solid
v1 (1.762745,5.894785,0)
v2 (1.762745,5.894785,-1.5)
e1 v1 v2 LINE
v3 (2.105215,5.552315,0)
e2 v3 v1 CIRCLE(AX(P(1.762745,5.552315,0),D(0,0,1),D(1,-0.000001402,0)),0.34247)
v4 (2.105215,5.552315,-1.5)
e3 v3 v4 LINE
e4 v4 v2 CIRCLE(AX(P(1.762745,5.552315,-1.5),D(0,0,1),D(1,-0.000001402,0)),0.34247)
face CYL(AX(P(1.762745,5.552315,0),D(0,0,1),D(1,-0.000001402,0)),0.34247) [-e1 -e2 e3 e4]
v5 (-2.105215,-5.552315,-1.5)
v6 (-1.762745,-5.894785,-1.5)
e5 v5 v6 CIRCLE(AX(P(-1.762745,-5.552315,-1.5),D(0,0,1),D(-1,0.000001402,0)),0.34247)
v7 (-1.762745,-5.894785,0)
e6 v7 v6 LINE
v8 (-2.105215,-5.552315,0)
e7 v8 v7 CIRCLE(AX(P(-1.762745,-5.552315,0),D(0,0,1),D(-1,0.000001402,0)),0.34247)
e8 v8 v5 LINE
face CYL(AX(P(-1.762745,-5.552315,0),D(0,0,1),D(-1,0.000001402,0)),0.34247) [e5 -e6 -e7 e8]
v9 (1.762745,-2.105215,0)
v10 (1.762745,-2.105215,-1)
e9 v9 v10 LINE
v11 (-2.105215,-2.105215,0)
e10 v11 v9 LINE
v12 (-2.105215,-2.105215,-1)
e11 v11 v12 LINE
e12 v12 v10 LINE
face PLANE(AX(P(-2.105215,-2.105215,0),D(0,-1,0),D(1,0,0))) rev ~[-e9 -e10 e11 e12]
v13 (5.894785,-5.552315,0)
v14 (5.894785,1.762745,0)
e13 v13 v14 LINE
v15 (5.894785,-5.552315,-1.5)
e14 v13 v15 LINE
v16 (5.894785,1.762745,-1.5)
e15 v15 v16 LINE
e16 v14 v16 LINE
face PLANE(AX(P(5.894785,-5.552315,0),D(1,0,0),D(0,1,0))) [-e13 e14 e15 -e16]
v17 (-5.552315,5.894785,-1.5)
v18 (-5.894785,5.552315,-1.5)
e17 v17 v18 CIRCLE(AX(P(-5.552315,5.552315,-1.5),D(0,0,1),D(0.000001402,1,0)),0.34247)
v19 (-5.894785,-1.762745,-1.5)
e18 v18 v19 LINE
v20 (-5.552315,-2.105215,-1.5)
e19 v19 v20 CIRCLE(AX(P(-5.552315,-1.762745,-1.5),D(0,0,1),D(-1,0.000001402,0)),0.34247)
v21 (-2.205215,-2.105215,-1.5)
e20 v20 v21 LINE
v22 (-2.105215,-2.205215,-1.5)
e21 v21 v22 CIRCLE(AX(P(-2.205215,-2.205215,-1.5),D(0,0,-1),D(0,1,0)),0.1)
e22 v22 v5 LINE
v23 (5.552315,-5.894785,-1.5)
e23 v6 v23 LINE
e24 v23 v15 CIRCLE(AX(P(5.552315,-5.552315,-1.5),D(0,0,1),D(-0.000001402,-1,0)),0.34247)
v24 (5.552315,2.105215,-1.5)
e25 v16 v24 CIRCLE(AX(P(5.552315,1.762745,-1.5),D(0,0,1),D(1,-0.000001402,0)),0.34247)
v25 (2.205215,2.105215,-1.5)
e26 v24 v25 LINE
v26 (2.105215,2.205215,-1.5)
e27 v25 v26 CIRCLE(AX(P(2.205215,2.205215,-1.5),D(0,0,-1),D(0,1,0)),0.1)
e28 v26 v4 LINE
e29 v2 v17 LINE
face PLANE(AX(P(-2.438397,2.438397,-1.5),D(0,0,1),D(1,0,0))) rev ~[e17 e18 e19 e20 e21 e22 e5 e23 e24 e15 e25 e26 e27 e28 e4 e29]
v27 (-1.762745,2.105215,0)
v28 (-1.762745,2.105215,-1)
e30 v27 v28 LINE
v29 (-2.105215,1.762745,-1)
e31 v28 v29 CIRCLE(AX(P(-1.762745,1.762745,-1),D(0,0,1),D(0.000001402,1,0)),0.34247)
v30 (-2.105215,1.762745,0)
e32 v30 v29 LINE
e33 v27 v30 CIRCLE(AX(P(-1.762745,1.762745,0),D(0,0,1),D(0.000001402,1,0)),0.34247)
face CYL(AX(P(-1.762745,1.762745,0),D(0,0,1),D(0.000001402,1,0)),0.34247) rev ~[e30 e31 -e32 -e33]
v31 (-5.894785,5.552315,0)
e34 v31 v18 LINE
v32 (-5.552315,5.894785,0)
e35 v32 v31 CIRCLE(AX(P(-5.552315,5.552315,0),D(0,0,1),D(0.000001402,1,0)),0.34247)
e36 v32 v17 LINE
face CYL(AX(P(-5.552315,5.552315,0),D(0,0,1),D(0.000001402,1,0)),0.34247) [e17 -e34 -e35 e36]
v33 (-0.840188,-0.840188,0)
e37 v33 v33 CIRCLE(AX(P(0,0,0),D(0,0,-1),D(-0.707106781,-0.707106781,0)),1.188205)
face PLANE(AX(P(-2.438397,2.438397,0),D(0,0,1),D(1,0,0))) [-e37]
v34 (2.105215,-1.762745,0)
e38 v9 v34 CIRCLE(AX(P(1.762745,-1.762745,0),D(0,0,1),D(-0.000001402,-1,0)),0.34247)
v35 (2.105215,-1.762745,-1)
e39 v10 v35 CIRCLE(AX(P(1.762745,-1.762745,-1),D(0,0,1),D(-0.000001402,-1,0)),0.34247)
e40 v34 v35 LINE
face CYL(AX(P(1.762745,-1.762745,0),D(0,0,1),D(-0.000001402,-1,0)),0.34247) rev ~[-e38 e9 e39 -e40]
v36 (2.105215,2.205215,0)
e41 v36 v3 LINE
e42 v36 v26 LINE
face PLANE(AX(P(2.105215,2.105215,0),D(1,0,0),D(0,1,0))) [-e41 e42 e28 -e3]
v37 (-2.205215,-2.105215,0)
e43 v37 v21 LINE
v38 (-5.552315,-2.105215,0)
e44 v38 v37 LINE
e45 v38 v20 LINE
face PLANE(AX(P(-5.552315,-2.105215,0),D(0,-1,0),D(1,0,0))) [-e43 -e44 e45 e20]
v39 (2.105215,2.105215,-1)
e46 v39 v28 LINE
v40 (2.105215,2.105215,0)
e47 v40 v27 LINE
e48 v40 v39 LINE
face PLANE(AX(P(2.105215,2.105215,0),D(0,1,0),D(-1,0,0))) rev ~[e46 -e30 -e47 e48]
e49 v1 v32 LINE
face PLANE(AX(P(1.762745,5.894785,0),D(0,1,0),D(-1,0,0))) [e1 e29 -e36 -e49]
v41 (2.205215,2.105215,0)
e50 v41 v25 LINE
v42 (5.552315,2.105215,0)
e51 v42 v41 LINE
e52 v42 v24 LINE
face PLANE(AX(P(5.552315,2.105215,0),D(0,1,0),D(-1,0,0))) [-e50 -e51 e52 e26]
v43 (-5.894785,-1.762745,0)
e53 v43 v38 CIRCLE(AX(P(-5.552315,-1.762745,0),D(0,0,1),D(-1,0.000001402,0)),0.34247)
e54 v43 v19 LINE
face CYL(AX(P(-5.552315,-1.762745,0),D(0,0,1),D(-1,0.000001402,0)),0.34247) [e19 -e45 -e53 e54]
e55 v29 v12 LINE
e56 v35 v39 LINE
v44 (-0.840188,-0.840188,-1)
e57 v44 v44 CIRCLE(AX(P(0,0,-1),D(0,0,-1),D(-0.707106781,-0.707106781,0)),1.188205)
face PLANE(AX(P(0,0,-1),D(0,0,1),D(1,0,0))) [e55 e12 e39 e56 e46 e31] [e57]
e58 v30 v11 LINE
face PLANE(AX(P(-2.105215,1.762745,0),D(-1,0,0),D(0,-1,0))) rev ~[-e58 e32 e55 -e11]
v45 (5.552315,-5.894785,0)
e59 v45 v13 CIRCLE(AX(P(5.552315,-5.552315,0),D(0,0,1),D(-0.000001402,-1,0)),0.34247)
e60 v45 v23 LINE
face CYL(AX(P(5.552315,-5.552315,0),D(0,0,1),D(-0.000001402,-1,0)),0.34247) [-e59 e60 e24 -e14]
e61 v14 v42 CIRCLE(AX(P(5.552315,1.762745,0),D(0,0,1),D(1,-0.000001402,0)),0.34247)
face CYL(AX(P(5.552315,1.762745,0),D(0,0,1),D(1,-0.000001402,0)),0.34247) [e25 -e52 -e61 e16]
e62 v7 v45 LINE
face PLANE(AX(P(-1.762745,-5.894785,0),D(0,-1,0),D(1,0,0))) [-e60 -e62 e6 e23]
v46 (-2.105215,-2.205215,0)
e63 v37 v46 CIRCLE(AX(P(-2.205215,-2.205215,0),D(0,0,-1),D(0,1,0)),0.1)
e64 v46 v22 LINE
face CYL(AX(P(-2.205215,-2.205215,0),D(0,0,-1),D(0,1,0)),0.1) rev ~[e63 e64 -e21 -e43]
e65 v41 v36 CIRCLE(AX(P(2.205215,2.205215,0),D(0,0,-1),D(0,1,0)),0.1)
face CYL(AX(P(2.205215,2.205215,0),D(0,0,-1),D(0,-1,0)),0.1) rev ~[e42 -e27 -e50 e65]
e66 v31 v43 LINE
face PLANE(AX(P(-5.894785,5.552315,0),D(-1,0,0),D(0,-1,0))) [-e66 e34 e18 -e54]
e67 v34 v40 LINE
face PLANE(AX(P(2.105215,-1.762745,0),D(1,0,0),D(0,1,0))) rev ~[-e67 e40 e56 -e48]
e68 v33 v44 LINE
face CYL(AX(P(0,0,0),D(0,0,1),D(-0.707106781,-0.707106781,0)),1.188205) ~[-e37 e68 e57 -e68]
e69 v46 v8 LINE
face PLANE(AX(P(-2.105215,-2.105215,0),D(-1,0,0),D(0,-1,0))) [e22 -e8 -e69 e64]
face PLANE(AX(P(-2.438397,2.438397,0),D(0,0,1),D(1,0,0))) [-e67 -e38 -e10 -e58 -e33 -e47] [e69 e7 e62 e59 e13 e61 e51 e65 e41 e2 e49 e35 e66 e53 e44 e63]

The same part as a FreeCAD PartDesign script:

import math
import FreeCAD as App
import Part
import Sketcher
from FreeCAD import Vector
Q = App.Units.Quantity


def edges_at(feature, points):
    """Names of the edges that pass closest to the given points."""
    edges = feature.Shape.Edges
    near = lambda p: min(range(len(edges)), key=lambda i: edges[i].distToShape(Part.Vertex(*p))[0])
    return sorted({f"Edge{near(p) + 1}" for p in points})

doc = App.newDocument("Part")
body = doc.addObject("PartDesign::Body", "Body")

sketch1 = body.newObject("Sketcher::SketchObject", "Sketch")
sketch1.AttachmentSupport = (doc.getObject("XY_Plane"), [""])
sketch1.MapMode = "FlatFace"
sketch1.addGeometry([
    Part.LineSegment(Vector(1.76, 5.89, 0), Vector(-5.55, 5.89, 0)),
    Part.ArcOfCircle(Part.Circle(Vector(-5.55, 5.55, 0), Vector(0, 0, 1), 0.34), math.radians(90), math.radians(180)),
    Part.LineSegment(Vector(-5.89, 5.55, 0), Vector(-5.89, -1.76, 0)),
    Part.ArcOfCircle(Part.Circle(Vector(-5.55, -1.76, 0), Vector(0, 0, 1), 0.34), math.radians(180), math.radians(270)),
    Part.LineSegment(Vector(-5.55, -2.11, 0), Vector(-2.11, -2.11, 0)),
    Part.LineSegment(Vector(-2.11, -2.11, 0), Vector(-2.11, -5.55, 0)),
    Part.ArcOfCircle(Part.Circle(Vector(-1.76, -5.55, 0), Vector(0, 0, 1), 0.34), math.radians(180), math.radians(270)),
    Part.LineSegment(Vector(-1.76, -5.89, 0), Vector(5.55, -5.89, 0)),
    Part.ArcOfCircle(Part.Circle(Vector(5.55, -5.55, 0), Vector(0, 0, 1), 0.34), math.radians(-90), math.radians(0)),
    Part.LineSegment(Vector(5.89, -5.55, 0), Vector(5.89, 1.76, 0)),
    Part.ArcOfCircle(Part.Circle(Vector(5.55, 1.76, 0), Vector(0, 0, 1), 0.34), math.radians(0), math.radians(90)),
    Part.LineSegment(Vector(5.55, 2.11, 0), Vector(2.11, 2.11, 0)),
    Part.LineSegment(Vector(2.11, 2.11, 0), Vector(2.11, 5.55, 0)),
    Part.ArcOfCircle(Part.Circle(Vector(1.76, 5.55, 0), Vector(0, 0, 1), 0.34), math.radians(0), math.radians(90)),
], False)
sketch1.addConstraint([
    Sketcher.Constraint("Tangent", 0, 2, 1, 1),
    Sketcher.Constraint("Tangent", 1, 2, 2, 1),
    Sketcher.Constraint("Tangent", 2, 2, 3, 1),
    Sketcher.Constraint("Tangent", 3, 2, 4, 1),
    Sketcher.Constraint("Coincident", 4, 2, 5, 1),
    Sketcher.Constraint("Tangent", 5, 2, 6, 1),
    Sketcher.Constraint("Tangent", 6, 2, 7, 1),
    Sketcher.Constraint("Tangent", 7, 2, 8, 1),
    Sketcher.Constraint("Tangent", 8, 2, 9, 1),
    Sketcher.Constraint("Tangent", 9, 2, 10, 1),
    Sketcher.Constraint("Tangent", 10, 2, 11, 1),
    Sketcher.Constraint("Coincident", 11, 2, 12, 1),
    Sketcher.Constraint("Tangent", 12, 2, 13, 1),
    Sketcher.Constraint("Tangent", 13, 2, 0, 1),
    Sketcher.Constraint("Horizontal", 0),
    Sketcher.Constraint("Vertical", 2),
    Sketcher.Constraint("Horizontal", 4),
    Sketcher.Constraint("Vertical", 5),
    Sketcher.Constraint("Horizontal", 7),
    Sketcher.Constraint("Vertical", 9),
    Sketcher.Constraint("Horizontal", 11),
    Sketcher.Constraint("Vertical", 12),
    Sketcher.Constraint("Equal", 1, 3),
    Sketcher.Constraint("Equal", 3, 6),
    Sketcher.Constraint("Equal", 6, 8),
    Sketcher.Constraint("Equal", 8, 10),
    Sketcher.Constraint("Equal", 10, 13),
    Sketcher.Constraint("Symmetric", 1, 3, 8, 3, -1, 1),
    Sketcher.Constraint("Symmetric", 4, 2, 11, 2, -1, 1),
    Sketcher.Constraint("Equal", 7, 2),
    Sketcher.Constraint("Equal", 11, 5),
    Sketcher.Constraint("Radius", 1, Q("0.34247 mm")),
    Sketcher.Constraint("DistanceX", 4, 1, 4, 2, Q("3.4471 mm")),
    Sketcher.Constraint("DistanceX", 0, 2, 0, 1, Q("7.31506 mm")),
])
pad1 = body.newObject("PartDesign::Pad", "Pad")
pad1.Profile = sketch1
pad1.Length = 1.5
pad1.Reversed = True
doc.recompute()

fillet = body.newObject("PartDesign::Fillet", "Fillet")
fillet.Base = (pad1, edges_at(pad1, [(-2.105, -2.105, -0.75), (2.105, 2.105, -0.75)]))
fillet.Radius = 0.1

sketch2 = body.newObject("Sketcher::SketchObject", "Sketch001")
sketch2.AttachmentSupport = (doc.getObject("XY_Plane"), [""])
sketch2.MapMode = "FlatFace"
sketch2.addGeometry([
    Part.LineSegment(Vector(2.11, -1.76, 0), Vector(2.11, 2.11, 0)),
    Part.LineSegment(Vector(2.11, 2.11, 0), Vector(-1.76, 2.11, 0)),
    Part.ArcOfCircle(Part.Circle(Vector(-1.76, 1.76, 0), Vector(0, 0, 1), 0.34), math.radians(90), math.radians(180)),
    Part.LineSegment(Vector(-2.11, 1.76, 0), Vector(-2.11, -2.11, 0)),
    Part.LineSegment(Vector(-2.11, -2.11, 0), Vector(1.76, -2.11, 0)),
    Part.ArcOfCircle(Part.Circle(Vector(1.76, -1.76, 0), Vector(0, 0, 1), 0.34), math.radians(-90), math.radians(0)),
    Part.Circle(Vector(0, 0, 0), Vector(0, 0, 1), 1.19),
], False)
sketch2.addConstraint([
    Sketcher.Constraint("Coincident", 0, 2, 1, 1),
    Sketcher.Constraint("Tangent", 1, 2, 2, 1),
    Sketcher.Constraint("Tangent", 2, 2, 3, 1),
    Sketcher.Constraint("Coincident", 3, 2, 4, 1),
    Sketcher.Constraint("Tangent", 4, 2, 5, 1),
    Sketcher.Constraint("Tangent", 5, 2, 0, 1),
    Sketcher.Constraint("Vertical", 0),
    Sketcher.Constraint("Horizontal", 1),
    Sketcher.Constraint("Vertical", 3),
    Sketcher.Constraint("Horizontal", 4),
    Sketcher.Constraint("Coincident", 6, 3, -1, 1),
    Sketcher.Constraint("Equal", 2, 5),
    Sketcher.Constraint("Symmetric", 2, 3, 5, 3, -1, 1),
    Sketcher.Constraint("Equal", 4, 0),
    Sketcher.Constraint("Diameter", 6, Q("2.376411 mm")),
    Sketcher.Constraint("Radius", 2, Q("0.34247 mm")),
    Sketcher.Constraint("DistanceX", 1, 2, 1, 1, Q("3.86796 mm")),
])
pocket1 = body.newObject("PartDesign::Pocket", "Pocket")
pocket1.Profile = sketch2
pocket1.Length = 1

doc.recompute()
